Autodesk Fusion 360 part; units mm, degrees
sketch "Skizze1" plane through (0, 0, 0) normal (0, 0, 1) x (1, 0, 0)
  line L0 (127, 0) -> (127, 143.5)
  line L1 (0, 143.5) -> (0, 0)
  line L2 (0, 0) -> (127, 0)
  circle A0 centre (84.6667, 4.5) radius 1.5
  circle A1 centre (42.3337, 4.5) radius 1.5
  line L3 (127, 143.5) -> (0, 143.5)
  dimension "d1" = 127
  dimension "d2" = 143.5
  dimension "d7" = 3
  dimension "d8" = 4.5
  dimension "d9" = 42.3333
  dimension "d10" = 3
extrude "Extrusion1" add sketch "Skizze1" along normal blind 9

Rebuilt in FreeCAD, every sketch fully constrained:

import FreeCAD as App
import Part
import Sketcher

V = App.Vector


def add_polygon(sketch, points):
    """Adds a closed chain of lines whose ends are joined by coincident constraints."""
    first, n = sketch.GeometryCount, len(points)
    for a, b in zip(points, points[1:] + points[:1]):
        sketch.addGeometry(Part.LineSegment(App.Vector(*a, 0), App.Vector(*b, 0)), False)
    for i in range(n):
        sketch.addConstraint(Sketcher.Constraint("Coincident", first + i, 2, first + (i + 1) % n, 1))

doc = App.newDocument("Part")
body = doc.addObject("PartDesign::Body", "Body")

# Sketch on XY plane
sketch1 = body.newObject("Sketcher::SketchObject", "Sketch")
sketch1.AttachmentSupport = (doc.getObject("XY_Plane"), [""])
sketch1.MapMode = "FlatFace"
add_polygon(sketch1, [(0, 0), (127, 0), (127, 143.5), (0, 143.5)])  # lines 0-3
sketch1.addGeometry(Part.Circle(V(42.3, 4.5, 0), V(0, 0, 1), 1.5), False)  # 4
sketch1.addGeometry(Part.Circle(V(84.7, 4.5, 0), V(0, 0, 1), 1.5), False)  # 5
sketch1.addConstraint(Sketcher.Constraint("Horizontal", 0))
sketch1.addConstraint(Sketcher.Constraint("Vertical", 1))
sketch1.addConstraint(Sketcher.Constraint("Horizontal", 2))
sketch1.addConstraint(Sketcher.Constraint("Vertical", 3))
sketch1.addConstraint(Sketcher.Constraint("Coincident", 3, 2, -1, 1))
sketch1.addConstraint(Sketcher.Constraint("Equal", 4, 5))
sketch1.addConstraint(Sketcher.Constraint("Horizontal", 4, 3, 5, 3))
sketch1.addConstraint(Sketcher.Constraint("Diameter", 4, 3.0))
sketch1.addConstraint(Sketcher.Constraint("DistanceX", 0, 1, 0, 2, 127.0))
sketch1.addConstraint(Sketcher.Constraint("DistanceY", 1, 1, 1, 2, 143.5))
sketch1.addConstraint(Sketcher.Constraint("DistanceY", -1, 1, 4, 3, 4.5))
sketch1.addConstraint(Sketcher.Constraint("DistanceX", 4, 3, 5, 3, 42.333))
sketch1.addConstraint(Sketcher.Constraint("DistanceX", -1, 1, 4, 3, 42.3337))
pad1 = body.newObject("PartDesign::Pad", "Pad")
pad1.Profile = sketch1
pad1.Length = 9

doc.recompute()
